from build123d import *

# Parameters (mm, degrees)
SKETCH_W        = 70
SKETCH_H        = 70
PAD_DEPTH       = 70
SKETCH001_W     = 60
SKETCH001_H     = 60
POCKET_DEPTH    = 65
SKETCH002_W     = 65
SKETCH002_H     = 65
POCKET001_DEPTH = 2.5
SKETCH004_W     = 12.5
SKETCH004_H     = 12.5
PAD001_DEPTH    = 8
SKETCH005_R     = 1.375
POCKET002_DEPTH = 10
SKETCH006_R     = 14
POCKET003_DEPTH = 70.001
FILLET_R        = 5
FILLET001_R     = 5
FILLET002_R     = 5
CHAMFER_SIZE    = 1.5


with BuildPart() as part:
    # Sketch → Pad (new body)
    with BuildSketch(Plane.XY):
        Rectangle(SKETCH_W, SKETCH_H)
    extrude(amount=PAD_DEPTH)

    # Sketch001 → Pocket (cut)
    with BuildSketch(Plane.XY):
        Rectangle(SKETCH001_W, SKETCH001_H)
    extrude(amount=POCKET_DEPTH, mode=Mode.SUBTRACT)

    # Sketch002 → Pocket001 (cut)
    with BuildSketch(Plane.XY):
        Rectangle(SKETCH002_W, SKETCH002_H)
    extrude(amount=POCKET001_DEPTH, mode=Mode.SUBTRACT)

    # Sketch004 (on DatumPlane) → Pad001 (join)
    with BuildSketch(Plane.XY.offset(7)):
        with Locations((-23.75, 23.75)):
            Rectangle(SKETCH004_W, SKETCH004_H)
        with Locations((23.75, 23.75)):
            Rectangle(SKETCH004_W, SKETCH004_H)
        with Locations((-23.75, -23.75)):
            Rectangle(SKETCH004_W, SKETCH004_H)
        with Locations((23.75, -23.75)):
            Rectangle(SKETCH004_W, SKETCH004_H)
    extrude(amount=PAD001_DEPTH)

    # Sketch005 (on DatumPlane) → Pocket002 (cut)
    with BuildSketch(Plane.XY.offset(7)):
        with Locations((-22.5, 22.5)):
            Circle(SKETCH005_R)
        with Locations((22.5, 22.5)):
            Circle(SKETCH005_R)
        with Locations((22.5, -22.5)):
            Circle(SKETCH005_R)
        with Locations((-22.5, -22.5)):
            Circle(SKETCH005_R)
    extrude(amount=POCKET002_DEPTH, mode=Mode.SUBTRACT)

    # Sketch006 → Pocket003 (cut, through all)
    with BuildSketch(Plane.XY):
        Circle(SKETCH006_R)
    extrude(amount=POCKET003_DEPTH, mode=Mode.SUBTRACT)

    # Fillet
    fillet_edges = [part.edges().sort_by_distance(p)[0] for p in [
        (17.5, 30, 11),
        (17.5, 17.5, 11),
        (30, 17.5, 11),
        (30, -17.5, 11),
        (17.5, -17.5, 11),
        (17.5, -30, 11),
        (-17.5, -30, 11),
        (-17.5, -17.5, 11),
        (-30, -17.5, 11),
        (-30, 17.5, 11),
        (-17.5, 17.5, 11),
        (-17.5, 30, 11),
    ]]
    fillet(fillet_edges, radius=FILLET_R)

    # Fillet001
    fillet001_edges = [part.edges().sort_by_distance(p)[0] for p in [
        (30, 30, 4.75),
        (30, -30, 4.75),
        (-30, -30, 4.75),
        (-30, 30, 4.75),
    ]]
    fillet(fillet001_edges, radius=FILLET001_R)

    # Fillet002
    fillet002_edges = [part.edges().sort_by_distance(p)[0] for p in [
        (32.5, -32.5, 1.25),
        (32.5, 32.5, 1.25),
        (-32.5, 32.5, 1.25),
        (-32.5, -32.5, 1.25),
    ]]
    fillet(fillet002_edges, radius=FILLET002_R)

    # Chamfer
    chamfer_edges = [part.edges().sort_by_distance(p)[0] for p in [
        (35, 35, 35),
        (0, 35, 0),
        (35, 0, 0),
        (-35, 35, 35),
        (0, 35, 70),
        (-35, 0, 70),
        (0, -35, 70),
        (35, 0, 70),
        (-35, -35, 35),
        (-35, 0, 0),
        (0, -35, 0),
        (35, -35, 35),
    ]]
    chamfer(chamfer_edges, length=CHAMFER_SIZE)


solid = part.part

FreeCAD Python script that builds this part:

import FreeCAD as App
import Part
import Sketcher
from FreeCAD import Vector


def edges_at(feature, points):
    """Names of the edges that pass closest to the given points."""
    edges = feature.Shape.Edges
    near = lambda p: min(range(len(edges)), key=lambda i: edges[i].distToShape(Part.Vertex(*p))[0])
    return sorted({f"Edge{near(p) + 1}" for p in points})

doc = App.newDocument("Part")
body = doc.addObject("PartDesign::Body", "Body")

# Sketch on XY plane
sketch1 = doc.addObject("Sketcher::SketchObject", "Sketch")
body.addObject(sketch1)
sketch1.AttachmentSupport = (doc.XY_Plane, [""])
sketch1.MapMode = "FlatFace"
sketch1.addGeometry([
    Part.LineSegment(Vector(-35, 35, 0), Vector(-35, -35, 0)),
    Part.LineSegment(Vector(-35, -35, 0), Vector(35, -35, 0)),
    Part.LineSegment(Vector(35, -35, 0), Vector(35, 35, 0)),
    Part.LineSegment(Vector(35, 35, 0), Vector(-35, 35, 0)),
], False)
sketch1.addConstraint([
    Sketcher.Constraint("Coincident", 0, 2, 1, 1),
    Sketcher.Constraint("Coincident", 1, 2, 2, 1),
    Sketcher.Constraint("Coincident", 2, 2, 3, 1),
    Sketcher.Constraint("Coincident", 3, 2, 0, 1),
    Sketcher.Constraint("Vertical", 0),
    Sketcher.Constraint("Horizontal", 1),
    Sketcher.Constraint("Vertical", 2),
    Sketcher.Constraint("Horizontal", 3),
    Sketcher.Constraint("Symmetric", 0, 2, 2, 2, -1, 1),
    Sketcher.Constraint("Equal", 3, 0),
    Sketcher.Constraint("DistanceX", 1, 1, 1, 2, 70.0),
])
pad1 = doc.addObject("PartDesign::Pad", "Pad")
body.addObject(pad1)
pad1.Profile = sketch1
pad1.Length = 70

# Sketch on XY plane
sketch2 = doc.addObject("Sketcher::SketchObject", "Sketch001")
body.addObject(sketch2)
sketch2.AttachmentSupport = (doc.XY_Plane, [""])
sketch2.MapMode = "FlatFace"
sketch2.addGeometry([
    Part.LineSegment(Vector(-30, 30, 0), Vector(-30, -30, 0)),
    Part.LineSegment(Vector(-30, -30, 0), Vector(30, -30, 0)),
    Part.LineSegment(Vector(30, -30, 0), Vector(30, 30, 0)),
    Part.LineSegment(Vector(30, 30, 0), Vector(-30, 30, 0)),
], False)
sketch2.addConstraint([
    Sketcher.Constraint("Coincident", 0, 2, 1, 1),
    Sketcher.Constraint("Coincident", 1, 2, 2, 1),
    Sketcher.Constraint("Coincident", 2, 2, 3, 1),
    Sketcher.Constraint("Coincident", 3, 2, 0, 1),
    Sketcher.Constraint("Vertical", 0),
    Sketcher.Constraint("Horizontal", 1),
    Sketcher.Constraint("Vertical", 2),
    Sketcher.Constraint("Horizontal", 3),
    Sketcher.Constraint("Symmetric", 0, 2, 2, 2, -1, 1),
    Sketcher.Constraint("Equal", 3, 0),
    Sketcher.Constraint("DistanceX", 1, 1, 1, 2, 60.0),
])
pocket1 = doc.addObject("PartDesign::Pocket", "Pocket")
body.addObject(pocket1)
pocket1.Profile = sketch2
pocket1.Length = 65
pocket1.Reversed = True

# Sketch on XY plane
sketch3 = doc.addObject("Sketcher::SketchObject", "Sketch002")
body.addObject(sketch3)
sketch3.AttachmentSupport = (doc.XY_Plane, [""])
sketch3.MapMode = "FlatFace"
sketch3.addGeometry([
    Part.LineSegment(Vector(-32, 32, 0), Vector(-32, -32, 0)),
    Part.LineSegment(Vector(-32, -32, 0), Vector(32, -32, 0)),
    Part.LineSegment(Vector(32, -32, 0), Vector(32, 32, 0)),
    Part.LineSegment(Vector(32, 32, 0), Vector(-32, 32, 0)),
], False)
sketch3.addConstraint([
    Sketcher.Constraint("Coincident", 0, 2, 1, 1),
    Sketcher.Constraint("Coincident", 1, 2, 2, 1),
    Sketcher.Constraint("Coincident", 2, 2, 3, 1),
    Sketcher.Constraint("Coincident", 3, 2, 0, 1),
    Sketcher.Constraint("Vertical", 0),
    Sketcher.Constraint("Horizontal", 1),
    Sketcher.Constraint("Vertical", 2),
    Sketcher.Constraint("Horizontal", 3),
    Sketcher.Constraint("Symmetric", 0, 2, 2, 2, -1, 1),
    Sketcher.Constraint("Equal", 3, 0),
    Sketcher.Constraint("DistanceX", 1, 1, 1, 2, 65.0),
])
pocket2 = doc.addObject("PartDesign::Pocket", "Pocket001")
body.addObject(pocket2)
pocket2.Profile = sketch3
pocket2.Length = 2.5
pocket2.Reversed = True

# Sketch on XY plane
sketch4 = doc.addObject("Sketcher::SketchObject", "Sketch003")
body.addObject(sketch4)
sketch4.AttachmentSupport = (doc.XY_Plane, [""])
sketch4.MapMode = "FlatFace"
sketch4.AttachmentOffset = App.Placement(Vector(0, 0, 7), App.Rotation())
sketch4.addGeometry([
    Part.LineSegment(Vector(-30, 30, 0), Vector(-30, 18, 0)),  # 0
    Part.LineSegment(Vector(-30, 18, 0), Vector(-18, 18, 0)),  # 1
    Part.LineSegment(Vector(-18, 18, 0), Vector(-18, 30, 0)),  # 2
    Part.LineSegment(Vector(-18, 30, 0), Vector(-30, 30, 0)),  # 3
    Part.LineSegment(Vector(18, 30, 0), Vector(18, 18, 0)),  # 4
    Part.LineSegment(Vector(18, 18, 0), Vector(30, 18, 0)),  # 5
    Part.LineSegment(Vector(30, 18, 0), Vector(30, 30, 0)),  # 6
    Part.LineSegment(Vector(30, 30, 0), Vector(18, 30, 0)),  # 7
    Part.LineSegment(Vector(-30, -18, 0), Vector(-30, -30, 0)),  # 8
    Part.LineSegment(Vector(-30, -30, 0), Vector(-18, -30, 0)),  # 9
    Part.LineSegment(Vector(-18, -30, 0), Vector(-18, -18, 0)),  # 10
    Part.LineSegment(Vector(-18, -18, 0), Vector(-30, -18, 0)),  # 11
    Part.LineSegment(Vector(18, -18, 0), Vector(18, -30, 0)),  # 12
    Part.LineSegment(Vector(18, -30, 0), Vector(30, -30, 0)),  # 13
    Part.LineSegment(Vector(30, -30, 0), Vector(30, -18, 0)),  # 14
    Part.LineSegment(Vector(30, -18, 0), Vector(18, -18, 0)),  # 15
], False)
sketch4.addConstraint([
    Sketcher.Constraint("Coincident", 0, 2, 1, 1),
    Sketcher.Constraint("Coincident", 1, 2, 2, 1),
    Sketcher.Constraint("Coincident", 2, 2, 3, 1),
    Sketcher.Constraint("Coincident", 3, 2, 0, 1),
    Sketcher.Constraint("Coincident", 4, 2, 5, 1),
    Sketcher.Constraint("Coincident", 5, 2, 6, 1),
    Sketcher.Constraint("Coincident", 6, 2, 7, 1),
    Sketcher.Constraint("Coincident", 7, 2, 4, 1),
    Sketcher.Constraint("Coincident", 8, 2, 9, 1),
    Sketcher.Constraint("Coincident", 9, 2, 10, 1),
    Sketcher.Constraint("Coincident", 10, 2, 11, 1),
    Sketcher.Constraint("Coincident", 11, 2, 8, 1),
    Sketcher.Constraint("Coincident", 12, 2, 13, 1),
    Sketcher.Constraint("Coincident", 13, 2, 14, 1),
    Sketcher.Constraint("Coincident", 14, 2, 15, 1),
    Sketcher.Constraint("Coincident", 15, 2, 12, 1),
    Sketcher.Constraint("Vertical", 0),
    Sketcher.Constraint("Horizontal", 1),
    Sketcher.Constraint("Vertical", 2),
    Sketcher.Constraint("Horizontal", 3),
    Sketcher.Constraint("Vertical", 4),
    Sketcher.Constraint("Horizontal", 5),
    Sketcher.Constraint("Vertical", 6),
    Sketcher.Constraint("Horizontal", 7),
    Sketcher.Constraint("Vertical", 8),
    Sketcher.Constraint("Horizontal", 9),
    Sketcher.Constraint("Vertical", 10),
    Sketcher.Constraint("Horizontal", 11),
    Sketcher.Constraint("Vertical", 12),
    Sketcher.Constraint("Horizontal", 13),
    Sketcher.Constraint("Vertical", 14),
    Sketcher.Constraint("Horizontal", 15),
    Sketcher.Constraint("Symmetric", 6, 2, 8, 2, -1, 1),
    Sketcher.Constraint("Symmetric", 4, 2, 10, 2, -1, 1),
    Sketcher.Constraint("Symmetric", 2, 2, 12, 2, -1, 1),
    Sketcher.Constraint("Symmetric", 0, 2, 14, 2, -1, 1),
    Sketcher.Constraint("Symmetric", 1, 2, 4, 2, -2),
    Sketcher.Constraint("Symmetric", 3, 2, 6, 2, -2),
    Sketcher.Constraint("Equal", 15, 0),
    Sketcher.Constraint("DistanceX", 1, 1, 1, 2, 12.5),
    Sketcher.Constraint("DistanceX", 0, 2, -1, 1, 30.0),
    Sketcher.Constraint("DistanceY", -1, 1, 2, 2, 30.0),
])
pad2 = doc.addObject("PartDesign::Pad", "Pad001")
body.addObject(pad2)
pad2.Profile = sketch4
pad2.Length = 8

# Sketch on XY plane
sketch5 = doc.addObject("Sketcher::SketchObject", "Sketch004")
body.addObject(sketch5)
sketch5.AttachmentSupport = (doc.XY_Plane, [""])
sketch5.MapMode = "FlatFace"
sketch5.AttachmentOffset = App.Placement(Vector(0, 0, 7), App.Rotation())
sketch5.addGeometry([
    Part.Circle(Vector(-22.5, 22.5, 0), Vector(0, 0, 1), 1.4),
    Part.Circle(Vector(22.5, 22.5, 0), Vector(0, 0, 1), 1.4),
    Part.Circle(Vector(22.5, -22.5, 0), Vector(0, 0, 1), 1.4),
    Part.Circle(Vector(-22.5, -22.5, 0), Vector(0, 0, 1), 1.4),
], False)
sketch5.addConstraint([
    Sketcher.Constraint("Equal", 0, 1),
    Sketcher.Constraint("Equal", 1, 2),
    Sketcher.Constraint("Equal", 2, 3),
    Sketcher.Constraint("Symmetric", 0, 3, 2, 3, -1, 1),
    Sketcher.Constraint("Symmetric", 1, 3, 3, 3, -1, 1),
    Sketcher.Constraint("Symmetric", 0, 3, 1, 3, -2),
    Sketcher.Constraint("Diameter", 0, 2.75),
    Sketcher.Constraint("DistanceX", 0, 3, 1, 3, 45.0),
    Sketcher.Constraint("DistanceY", 2, 3, 1, 3, 45.0),
])
pocket3 = doc.addObject("PartDesign::Pocket", "Pocket002")
body.addObject(pocket3)
pocket3.Profile = sketch5
pocket3.Length = 10
pocket3.Reversed = True

# Sketch on XY plane
sketch6 = doc.addObject("Sketcher::SketchObject", "Sketch005")
body.addObject(sketch6)
sketch6.AttachmentSupport = (doc.XY_Plane, [""])
sketch6.MapMode = "FlatFace"
sketch6.addGeometry(Part.Circle(Vector(0, 0, 0), Vector(0, 0, 1), 14), False)
sketch6.addConstraint([
    Sketcher.Constraint("Coincident", 0, 3, -1, 1),
    Sketcher.Constraint("Diameter", 0, 28.0),
])
pocket4 = doc.addObject("PartDesign::Pocket", "Pocket003")
body.addObject(pocket4)
pocket4.Profile = sketch6
pocket4.Type = "ThroughAll"
pocket4.Reversed = True
doc.recompute()

fillet = doc.addObject("PartDesign::Fillet", "Fillet")
body.addObject(fillet)
fillet.Base = (pocket4, edges_at(pocket4, [
    (17.5, 30, 11),
    (17.5, 17.5, 11),
    (30, 17.5, 11),
    (30, -17.5, 11),
    (17.5, -17.5, 11),
    (17.5, -30, 11),
    (-17.5, -30, 11),
    (-17.5, -17.5, 11),
    (-30, -17.5, 11),
    (-30, 17.5, 11),
    (-17.5, 17.5, 11),
    (-17.5, 30, 11),
]))
fillet.Radius = 5
doc.recompute()

fillet2 = doc.addObject("PartDesign::Fillet", "Fillet001")
body.addObject(fillet2)
fillet2.Base = (fillet, edges_at(fillet, [
    (30, 30, 4.75),
    (30, -30, 4.75),
    (-30, -30, 4.75),
    (-30, 30, 4.75),
]))
fillet2.Radius = 5
doc.recompute()

fillet3 = doc.addObject("PartDesign::Fillet", "Fillet002")
body.addObject(fillet3)
fillet3.Base = (fillet2, edges_at(fillet2, [
    (32.5, -32.5, 1.25),
    (32.5, 32.5, 1.25),
    (-32.5, 32.5, 1.25),
    (-32.5, -32.5, 1.25),
]))
fillet3.Radius = 5
doc.recompute()

chamfer = doc.addObject("PartDesign::Chamfer", "Chamfer")
body.addObject(chamfer)
chamfer.Base = (fillet3, edges_at(fillet3, [
    (35, 35, 35),
    (0, 35, 0),
    (35, 0, 0),
    (-35, 35, 35),
    (0, 35, 70),
    (-35, 0, 70),
    (0, -35, 70),
    (35, 0, 70),
    (-35, -35, 35),
    (-35, 0, 0),
    (0, -35, 0),
    (35, -35, 35),
]))
chamfer.Size = 1.5

doc.recompute()
